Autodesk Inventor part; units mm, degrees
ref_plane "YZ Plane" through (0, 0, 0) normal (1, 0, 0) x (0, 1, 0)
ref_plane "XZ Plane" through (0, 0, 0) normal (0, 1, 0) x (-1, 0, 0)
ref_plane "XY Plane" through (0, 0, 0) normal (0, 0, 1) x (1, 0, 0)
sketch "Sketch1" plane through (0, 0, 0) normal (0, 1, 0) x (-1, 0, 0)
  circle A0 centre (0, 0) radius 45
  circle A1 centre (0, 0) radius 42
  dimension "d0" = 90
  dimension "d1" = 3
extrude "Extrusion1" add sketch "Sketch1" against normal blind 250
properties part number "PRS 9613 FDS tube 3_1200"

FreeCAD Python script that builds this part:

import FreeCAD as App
import Part
import Sketcher

doc = App.newDocument("Part")
params = doc.addObject("Spreadsheet::Sheet", "Params")
for row, (alias, value) in enumerate([
    ("sketch1_diameter", "90 mm"),
    ("sketch1_diameter2", "84 mm"),
    ("pad1_length", "250 mm"),
], start=1):
    params.set(f"A{row}", alias)
    params.set(f"B{row}", "=" + value)
    params.setAlias(f"B{row}", alias)

body = doc.addObject("PartDesign::Body", "Body")

sketch1 = doc.addObject("Sketcher::SketchObject", "Sketch")
body.addObject(sketch1)
sketch1.AttachmentSupport = (doc.XZ_Plane, [""])
sketch1.MapMode = "FlatFace"
sketch1.addGeometry(Part.Circle(App.Vector(0, 0, 0), App.Vector(0, 0, 1), 45), False)
sketch1.addGeometry(Part.Circle(App.Vector(0, 0, 0), App.Vector(0, 0, 1), 42), False)
sketch1.addConstraint(Sketcher.Constraint("Coincident", 0, 3, -1, 1))
sketch1.addConstraint(Sketcher.Constraint("Coincident", 1, 3, -1, 1))
sketch1.addConstraint(Sketcher.Constraint("Diameter", 0, 90.0))
sketch1.addConstraint(Sketcher.Constraint("Diameter", 1, 84.0))
sketch1.setExpression("Constraints[2]", "Params.sketch1_diameter")
sketch1.setExpression("Constraints[3]", "Params.sketch1_diameter2")
pad1 = doc.addObject("PartDesign::Pad", "Pad")
body.addObject(pad1)
pad1.Profile = sketch1
pad1.setExpression("Length", "Params.pad1_length")

doc.recompute()
